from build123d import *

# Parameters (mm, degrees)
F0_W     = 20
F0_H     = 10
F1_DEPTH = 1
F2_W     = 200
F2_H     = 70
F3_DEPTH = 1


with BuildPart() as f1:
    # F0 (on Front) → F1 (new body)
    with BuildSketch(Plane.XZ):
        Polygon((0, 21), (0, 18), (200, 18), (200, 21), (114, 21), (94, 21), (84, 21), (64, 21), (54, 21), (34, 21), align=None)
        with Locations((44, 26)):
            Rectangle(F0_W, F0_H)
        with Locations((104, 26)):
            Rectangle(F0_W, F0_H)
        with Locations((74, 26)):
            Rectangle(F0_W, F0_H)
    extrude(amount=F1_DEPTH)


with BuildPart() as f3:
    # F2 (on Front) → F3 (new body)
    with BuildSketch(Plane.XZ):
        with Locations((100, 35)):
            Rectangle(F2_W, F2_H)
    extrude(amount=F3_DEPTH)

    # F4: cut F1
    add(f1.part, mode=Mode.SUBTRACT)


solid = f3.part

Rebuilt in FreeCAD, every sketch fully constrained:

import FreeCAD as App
import Part
import Sketcher

V = App.Vector

doc = App.newDocument("Part")
body = doc.addObject("PartDesign::Body", "Body")

# Sketch on XZ plane
sketch1 = doc.addObject("Sketcher::SketchObject", "Sketch")
body.addObject(sketch1)
sketch1.AttachmentSupport = (doc.XZ_Plane, [""])
sketch1.MapMode = "FlatFace"
sketch1.addGeometry([
    Part.LineSegment(V(0, 21, 0), V(0, 18, 0)),  # 0
    Part.LineSegment(V(0, 18, 0), V(200, 18, 0)),  # 1
    Part.LineSegment(V(200, 18, 0), V(200, 21, 0)),  # 2
    Part.LineSegment(V(200, 21, 0), V(114, 21, 0)),  # 3
    Part.LineSegment(V(114, 21, 0), V(114, 31, 0)),  # 4
    Part.LineSegment(V(114, 31, 0), V(94, 31, 0)),  # 5
    Part.LineSegment(V(94, 31, 0), V(94, 21, 0)),  # 6
    Part.LineSegment(V(94, 21, 0), V(84, 21, 0)),  # 7
    Part.LineSegment(V(84, 21, 0), V(84, 31, 0)),  # 8
    Part.LineSegment(V(84, 31, 0), V(64, 31, 0)),  # 9
    Part.LineSegment(V(64, 31, 0), V(64, 21, 0)),  # 10
    Part.LineSegment(V(64, 21, 0), V(54, 21, 0)),  # 11
    Part.LineSegment(V(54, 21, 0), V(54, 31, 0)),  # 12
    Part.LineSegment(V(54, 31, 0), V(34, 31, 0)),  # 13
    Part.LineSegment(V(34, 31, 0), V(34, 21, 0)),  # 14
    Part.LineSegment(V(34, 21, 0), V(0, 21, 0)),  # 15
], False)
sketch1.addConstraint([
    Sketcher.Constraint("Coincident", 0, 2, 1, 1),
    Sketcher.Constraint("Coincident", 1, 2, 2, 1),
    Sketcher.Constraint("Coincident", 2, 2, 3, 1),
    Sketcher.Constraint("Coincident", 3, 2, 4, 1),
    Sketcher.Constraint("Coincident", 4, 2, 5, 1),
    Sketcher.Constraint("Coincident", 5, 2, 6, 1),
    Sketcher.Constraint("Coincident", 6, 2, 7, 1),
    Sketcher.Constraint("Coincident", 7, 2, 8, 1),
    Sketcher.Constraint("Coincident", 8, 2, 9, 1),
    Sketcher.Constraint("Coincident", 9, 2, 10, 1),
    Sketcher.Constraint("Coincident", 10, 2, 11, 1),
    Sketcher.Constraint("Coincident", 11, 2, 12, 1),
    Sketcher.Constraint("Coincident", 12, 2, 13, 1),
    Sketcher.Constraint("Coincident", 13, 2, 14, 1),
    Sketcher.Constraint("Coincident", 14, 2, 15, 1),
    Sketcher.Constraint("Coincident", 15, 2, 0, 1),
    Sketcher.Constraint("Vertical", 0),
    Sketcher.Constraint("Horizontal", 1),
    Sketcher.Constraint("Vertical", 2),
    Sketcher.Constraint("Horizontal", 3),
    Sketcher.Constraint("Vertical", 4),
    Sketcher.Constraint("Horizontal", 5),
    Sketcher.Constraint("Vertical", 6),
    Sketcher.Constraint("Horizontal", 7),
    Sketcher.Constraint("Vertical", 8),
    Sketcher.Constraint("Horizontal", 9),
    Sketcher.Constraint("Vertical", 10),
    Sketcher.Constraint("Horizontal", 11),
    Sketcher.Constraint("Vertical", 12),
    Sketcher.Constraint("Horizontal", 13),
    Sketcher.Constraint("Vertical", 14),
    Sketcher.Constraint("Horizontal", 15),
    Sketcher.Constraint("PointOnObject", 0, 2, -2),
    Sketcher.Constraint("Horizontal", 3, 2, 6, 2),
    Sketcher.Constraint("Horizontal", 5, 2, 8, 2),
    Sketcher.Constraint("Horizontal", 7, 2, 10, 2),
    Sketcher.Constraint("Horizontal", 9, 2, 12, 2),
    Sketcher.Constraint("Horizontal", 11, 2, 14, 2),
    Sketcher.Constraint("Equal", 5, 9),
    Sketcher.Constraint("Equal", 7, 11),
    Sketcher.Constraint("Equal", 9, 13),
    Sketcher.Constraint("Equal", 11, 4),
    Sketcher.Constraint("DistanceX", 1, 1, 1, 2, 200.0),
    Sketcher.Constraint("DistanceX", 3, 2, 3, 1, 86.0),
    Sketcher.Constraint("DistanceX", 5, 2, 5, 1, 20.0),
    Sketcher.Constraint("DistanceX", 7, 2, 7, 1, 10.0),
    Sketcher.Constraint("DistanceY", 0, 2, 0, 1, 3.0),
    Sketcher.Constraint("DistanceY", -1, 1, 0, 2, 18.0),
])
pad1 = doc.addObject("PartDesign::Pad", "Pad")
body.addObject(pad1)
pad1.Profile = sketch1
pad1.Length = 1
body2 = doc.addObject("PartDesign::Body", "Body001")
body2.AllowCompound = True

# Sketch on XZ plane
sketch2 = doc.addObject("Sketcher::SketchObject", "Sketch001")
body2.addObject(sketch2)
sketch2.AttachmentSupport = (doc.getObject("XZ_Plane001"), [""])
sketch2.MapMode = "FlatFace"
sketch2.addGeometry([
    Part.LineSegment(V(0, 70, 0), V(0, 0, 0)),
    Part.LineSegment(V(0, 0, 0), V(200, 0, 0)),
    Part.LineSegment(V(200, 0, 0), V(200, 70, 0)),
    Part.LineSegment(V(200, 70, 0), V(0, 70, 0)),
], False)
sketch2.addConstraint([
    Sketcher.Constraint("Coincident", 0, 2, 1, 1),
    Sketcher.Constraint("Coincident", 1, 2, 2, 1),
    Sketcher.Constraint("Coincident", 2, 2, 3, 1),
    Sketcher.Constraint("Coincident", 3, 2, 0, 1),
    Sketcher.Constraint("Vertical", 0),
    Sketcher.Constraint("Horizontal", 1),
    Sketcher.Constraint("Vertical", 2),
    Sketcher.Constraint("Horizontal", 3),
    Sketcher.Constraint("Coincident", 0, 2, -1, 1),
    Sketcher.Constraint("DistanceX", 1, 1, 1, 2, 200.0),
    Sketcher.Constraint("DistanceY", 0, 2, 0, 1, 70.0),
])
pad2 = doc.addObject("PartDesign::Pad", "Pad001")
body2.addObject(pad2)
pad2.Profile = sketch2
pad2.Length = 1
doc.recompute()

boolean = doc.addObject("PartDesign::Boolean", "Boolean")
body2.addObject(boolean)
boolean.Type = "Cut"
boolean.addObjects([body])

doc.recompute()
